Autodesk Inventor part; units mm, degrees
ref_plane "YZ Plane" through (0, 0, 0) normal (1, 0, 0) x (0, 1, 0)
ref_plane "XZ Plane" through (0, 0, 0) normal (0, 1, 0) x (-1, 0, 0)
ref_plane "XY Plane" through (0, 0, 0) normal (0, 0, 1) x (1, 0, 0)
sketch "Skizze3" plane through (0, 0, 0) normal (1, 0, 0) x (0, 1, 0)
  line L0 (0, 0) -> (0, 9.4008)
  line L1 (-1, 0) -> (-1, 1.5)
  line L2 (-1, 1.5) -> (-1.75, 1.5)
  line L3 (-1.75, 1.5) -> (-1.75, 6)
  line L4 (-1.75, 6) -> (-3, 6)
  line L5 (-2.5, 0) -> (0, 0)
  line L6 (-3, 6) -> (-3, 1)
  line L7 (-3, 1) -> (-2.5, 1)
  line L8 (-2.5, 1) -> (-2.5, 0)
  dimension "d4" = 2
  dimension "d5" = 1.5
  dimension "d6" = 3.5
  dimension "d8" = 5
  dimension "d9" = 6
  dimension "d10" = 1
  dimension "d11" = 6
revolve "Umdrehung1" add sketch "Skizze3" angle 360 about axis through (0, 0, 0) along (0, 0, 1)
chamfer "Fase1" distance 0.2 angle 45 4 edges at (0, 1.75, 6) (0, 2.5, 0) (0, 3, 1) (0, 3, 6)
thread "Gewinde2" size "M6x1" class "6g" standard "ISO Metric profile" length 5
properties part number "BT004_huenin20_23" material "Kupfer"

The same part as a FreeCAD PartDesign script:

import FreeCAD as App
import Part
import Sketcher
Q = App.Units.Quantity


def edges_at(feature, points):
    """Names of the edges that pass closest to the given points."""
    edges = feature.Shape.Edges
    near = lambda p: min(range(len(edges)), key=lambda i: edges[i].distToShape(Part.Vertex(*p))[0])
    return sorted({f"Edge{near(p) + 1}" for p in points})

doc = App.newDocument("Part")
body = doc.addObject("PartDesign::Body", "Body")

# Sketch on YZ plane
sketch1 = body.newObject("Sketcher::SketchObject", "Sketch")
sketch1.AttachmentSupport = (doc.getObject("YZ_Plane"), [""])
sketch1.MapMode = "FlatFace"
sketch1.addGeometry([
    Part.LineSegment(App.Vector(-2.5, 0, 0), App.Vector(-1, 0, 0)),  # 0
    Part.LineSegment(App.Vector(-1, 0, 0), App.Vector(-1, 1.5, 0)),  # 1
    Part.LineSegment(App.Vector(-1, 1.5, 0), App.Vector(-1.8, 1.5, 0)),  # 2
    Part.LineSegment(App.Vector(-1.8, 1.5, 0), App.Vector(-1.8, 6, 0)),  # 3
    Part.LineSegment(App.Vector(-1.8, 6, 0), App.Vector(-3, 6, 0)),  # 4
    Part.LineSegment(App.Vector(-3, 6, 0), App.Vector(-3, 1, 0)),  # 5
    Part.LineSegment(App.Vector(-3, 1, 0), App.Vector(-2.5, 1, 0)),  # 6
    Part.LineSegment(App.Vector(-2.5, 1, 0), App.Vector(-2.5, 0, 0)),  # 7
], False)
sketch1.addConstraint([
    Sketcher.Constraint("Coincident", 0, 2, 1, 1),
    Sketcher.Constraint("Coincident", 1, 2, 2, 1),
    Sketcher.Constraint("Coincident", 2, 2, 3, 1),
    Sketcher.Constraint("Coincident", 3, 2, 4, 1),
    Sketcher.Constraint("Coincident", 4, 2, 5, 1),
    Sketcher.Constraint("Coincident", 5, 2, 6, 1),
    Sketcher.Constraint("Coincident", 6, 2, 7, 1),
    Sketcher.Constraint("Coincident", 7, 2, 0, 1),
    Sketcher.Constraint("Horizontal", 0),
    Sketcher.Constraint("Vertical", 1),
    Sketcher.Constraint("Horizontal", 2),
    Sketcher.Constraint("Vertical", 3),
    Sketcher.Constraint("Horizontal", 4),
    Sketcher.Constraint("Vertical", 5),
    Sketcher.Constraint("Horizontal", 6),
    Sketcher.Constraint("Vertical", 7),
    Sketcher.Constraint("PointOnObject", 0, 2, -1),
    Sketcher.Constraint("Equal", 0, 1),
    Sketcher.Constraint("DistanceY", 5, 2, 5, 1, Q("5 mm")),
    Sketcher.Constraint("DistanceY", 7, 2, 7, 1, Q("1 mm")),
    Sketcher.Constraint("DistanceX", 0, 1, 0, 2, Q("1.5 mm")),
    Sketcher.Constraint("DistanceX", 0, 2, -1, 1, Q("1 mm")),
    Sketcher.Constraint("DistanceX", 4, 2, 1, 2, Q("2 mm")),
    Sketcher.Constraint("DistanceX", 2, 2, 2, 1, Q("0.75 mm")),
])
revolution = body.newObject("PartDesign::Revolution", "Revolution")
revolution.Profile = sketch1
revolution.ReferenceAxis = (sketch1, ["V_Axis"])
revolution.Angle = 360
doc.recompute()

chamfer = body.newObject("PartDesign::Chamfer", "Chamfer")
chamfer.Base = (revolution, edges_at(revolution, [
    (0, 1.75, 6),
    (0, 2.5, 0),
    (0, 3, 1),
    (0, 3, 6),
]))
chamfer.Size = 0.2

doc.recompute()
